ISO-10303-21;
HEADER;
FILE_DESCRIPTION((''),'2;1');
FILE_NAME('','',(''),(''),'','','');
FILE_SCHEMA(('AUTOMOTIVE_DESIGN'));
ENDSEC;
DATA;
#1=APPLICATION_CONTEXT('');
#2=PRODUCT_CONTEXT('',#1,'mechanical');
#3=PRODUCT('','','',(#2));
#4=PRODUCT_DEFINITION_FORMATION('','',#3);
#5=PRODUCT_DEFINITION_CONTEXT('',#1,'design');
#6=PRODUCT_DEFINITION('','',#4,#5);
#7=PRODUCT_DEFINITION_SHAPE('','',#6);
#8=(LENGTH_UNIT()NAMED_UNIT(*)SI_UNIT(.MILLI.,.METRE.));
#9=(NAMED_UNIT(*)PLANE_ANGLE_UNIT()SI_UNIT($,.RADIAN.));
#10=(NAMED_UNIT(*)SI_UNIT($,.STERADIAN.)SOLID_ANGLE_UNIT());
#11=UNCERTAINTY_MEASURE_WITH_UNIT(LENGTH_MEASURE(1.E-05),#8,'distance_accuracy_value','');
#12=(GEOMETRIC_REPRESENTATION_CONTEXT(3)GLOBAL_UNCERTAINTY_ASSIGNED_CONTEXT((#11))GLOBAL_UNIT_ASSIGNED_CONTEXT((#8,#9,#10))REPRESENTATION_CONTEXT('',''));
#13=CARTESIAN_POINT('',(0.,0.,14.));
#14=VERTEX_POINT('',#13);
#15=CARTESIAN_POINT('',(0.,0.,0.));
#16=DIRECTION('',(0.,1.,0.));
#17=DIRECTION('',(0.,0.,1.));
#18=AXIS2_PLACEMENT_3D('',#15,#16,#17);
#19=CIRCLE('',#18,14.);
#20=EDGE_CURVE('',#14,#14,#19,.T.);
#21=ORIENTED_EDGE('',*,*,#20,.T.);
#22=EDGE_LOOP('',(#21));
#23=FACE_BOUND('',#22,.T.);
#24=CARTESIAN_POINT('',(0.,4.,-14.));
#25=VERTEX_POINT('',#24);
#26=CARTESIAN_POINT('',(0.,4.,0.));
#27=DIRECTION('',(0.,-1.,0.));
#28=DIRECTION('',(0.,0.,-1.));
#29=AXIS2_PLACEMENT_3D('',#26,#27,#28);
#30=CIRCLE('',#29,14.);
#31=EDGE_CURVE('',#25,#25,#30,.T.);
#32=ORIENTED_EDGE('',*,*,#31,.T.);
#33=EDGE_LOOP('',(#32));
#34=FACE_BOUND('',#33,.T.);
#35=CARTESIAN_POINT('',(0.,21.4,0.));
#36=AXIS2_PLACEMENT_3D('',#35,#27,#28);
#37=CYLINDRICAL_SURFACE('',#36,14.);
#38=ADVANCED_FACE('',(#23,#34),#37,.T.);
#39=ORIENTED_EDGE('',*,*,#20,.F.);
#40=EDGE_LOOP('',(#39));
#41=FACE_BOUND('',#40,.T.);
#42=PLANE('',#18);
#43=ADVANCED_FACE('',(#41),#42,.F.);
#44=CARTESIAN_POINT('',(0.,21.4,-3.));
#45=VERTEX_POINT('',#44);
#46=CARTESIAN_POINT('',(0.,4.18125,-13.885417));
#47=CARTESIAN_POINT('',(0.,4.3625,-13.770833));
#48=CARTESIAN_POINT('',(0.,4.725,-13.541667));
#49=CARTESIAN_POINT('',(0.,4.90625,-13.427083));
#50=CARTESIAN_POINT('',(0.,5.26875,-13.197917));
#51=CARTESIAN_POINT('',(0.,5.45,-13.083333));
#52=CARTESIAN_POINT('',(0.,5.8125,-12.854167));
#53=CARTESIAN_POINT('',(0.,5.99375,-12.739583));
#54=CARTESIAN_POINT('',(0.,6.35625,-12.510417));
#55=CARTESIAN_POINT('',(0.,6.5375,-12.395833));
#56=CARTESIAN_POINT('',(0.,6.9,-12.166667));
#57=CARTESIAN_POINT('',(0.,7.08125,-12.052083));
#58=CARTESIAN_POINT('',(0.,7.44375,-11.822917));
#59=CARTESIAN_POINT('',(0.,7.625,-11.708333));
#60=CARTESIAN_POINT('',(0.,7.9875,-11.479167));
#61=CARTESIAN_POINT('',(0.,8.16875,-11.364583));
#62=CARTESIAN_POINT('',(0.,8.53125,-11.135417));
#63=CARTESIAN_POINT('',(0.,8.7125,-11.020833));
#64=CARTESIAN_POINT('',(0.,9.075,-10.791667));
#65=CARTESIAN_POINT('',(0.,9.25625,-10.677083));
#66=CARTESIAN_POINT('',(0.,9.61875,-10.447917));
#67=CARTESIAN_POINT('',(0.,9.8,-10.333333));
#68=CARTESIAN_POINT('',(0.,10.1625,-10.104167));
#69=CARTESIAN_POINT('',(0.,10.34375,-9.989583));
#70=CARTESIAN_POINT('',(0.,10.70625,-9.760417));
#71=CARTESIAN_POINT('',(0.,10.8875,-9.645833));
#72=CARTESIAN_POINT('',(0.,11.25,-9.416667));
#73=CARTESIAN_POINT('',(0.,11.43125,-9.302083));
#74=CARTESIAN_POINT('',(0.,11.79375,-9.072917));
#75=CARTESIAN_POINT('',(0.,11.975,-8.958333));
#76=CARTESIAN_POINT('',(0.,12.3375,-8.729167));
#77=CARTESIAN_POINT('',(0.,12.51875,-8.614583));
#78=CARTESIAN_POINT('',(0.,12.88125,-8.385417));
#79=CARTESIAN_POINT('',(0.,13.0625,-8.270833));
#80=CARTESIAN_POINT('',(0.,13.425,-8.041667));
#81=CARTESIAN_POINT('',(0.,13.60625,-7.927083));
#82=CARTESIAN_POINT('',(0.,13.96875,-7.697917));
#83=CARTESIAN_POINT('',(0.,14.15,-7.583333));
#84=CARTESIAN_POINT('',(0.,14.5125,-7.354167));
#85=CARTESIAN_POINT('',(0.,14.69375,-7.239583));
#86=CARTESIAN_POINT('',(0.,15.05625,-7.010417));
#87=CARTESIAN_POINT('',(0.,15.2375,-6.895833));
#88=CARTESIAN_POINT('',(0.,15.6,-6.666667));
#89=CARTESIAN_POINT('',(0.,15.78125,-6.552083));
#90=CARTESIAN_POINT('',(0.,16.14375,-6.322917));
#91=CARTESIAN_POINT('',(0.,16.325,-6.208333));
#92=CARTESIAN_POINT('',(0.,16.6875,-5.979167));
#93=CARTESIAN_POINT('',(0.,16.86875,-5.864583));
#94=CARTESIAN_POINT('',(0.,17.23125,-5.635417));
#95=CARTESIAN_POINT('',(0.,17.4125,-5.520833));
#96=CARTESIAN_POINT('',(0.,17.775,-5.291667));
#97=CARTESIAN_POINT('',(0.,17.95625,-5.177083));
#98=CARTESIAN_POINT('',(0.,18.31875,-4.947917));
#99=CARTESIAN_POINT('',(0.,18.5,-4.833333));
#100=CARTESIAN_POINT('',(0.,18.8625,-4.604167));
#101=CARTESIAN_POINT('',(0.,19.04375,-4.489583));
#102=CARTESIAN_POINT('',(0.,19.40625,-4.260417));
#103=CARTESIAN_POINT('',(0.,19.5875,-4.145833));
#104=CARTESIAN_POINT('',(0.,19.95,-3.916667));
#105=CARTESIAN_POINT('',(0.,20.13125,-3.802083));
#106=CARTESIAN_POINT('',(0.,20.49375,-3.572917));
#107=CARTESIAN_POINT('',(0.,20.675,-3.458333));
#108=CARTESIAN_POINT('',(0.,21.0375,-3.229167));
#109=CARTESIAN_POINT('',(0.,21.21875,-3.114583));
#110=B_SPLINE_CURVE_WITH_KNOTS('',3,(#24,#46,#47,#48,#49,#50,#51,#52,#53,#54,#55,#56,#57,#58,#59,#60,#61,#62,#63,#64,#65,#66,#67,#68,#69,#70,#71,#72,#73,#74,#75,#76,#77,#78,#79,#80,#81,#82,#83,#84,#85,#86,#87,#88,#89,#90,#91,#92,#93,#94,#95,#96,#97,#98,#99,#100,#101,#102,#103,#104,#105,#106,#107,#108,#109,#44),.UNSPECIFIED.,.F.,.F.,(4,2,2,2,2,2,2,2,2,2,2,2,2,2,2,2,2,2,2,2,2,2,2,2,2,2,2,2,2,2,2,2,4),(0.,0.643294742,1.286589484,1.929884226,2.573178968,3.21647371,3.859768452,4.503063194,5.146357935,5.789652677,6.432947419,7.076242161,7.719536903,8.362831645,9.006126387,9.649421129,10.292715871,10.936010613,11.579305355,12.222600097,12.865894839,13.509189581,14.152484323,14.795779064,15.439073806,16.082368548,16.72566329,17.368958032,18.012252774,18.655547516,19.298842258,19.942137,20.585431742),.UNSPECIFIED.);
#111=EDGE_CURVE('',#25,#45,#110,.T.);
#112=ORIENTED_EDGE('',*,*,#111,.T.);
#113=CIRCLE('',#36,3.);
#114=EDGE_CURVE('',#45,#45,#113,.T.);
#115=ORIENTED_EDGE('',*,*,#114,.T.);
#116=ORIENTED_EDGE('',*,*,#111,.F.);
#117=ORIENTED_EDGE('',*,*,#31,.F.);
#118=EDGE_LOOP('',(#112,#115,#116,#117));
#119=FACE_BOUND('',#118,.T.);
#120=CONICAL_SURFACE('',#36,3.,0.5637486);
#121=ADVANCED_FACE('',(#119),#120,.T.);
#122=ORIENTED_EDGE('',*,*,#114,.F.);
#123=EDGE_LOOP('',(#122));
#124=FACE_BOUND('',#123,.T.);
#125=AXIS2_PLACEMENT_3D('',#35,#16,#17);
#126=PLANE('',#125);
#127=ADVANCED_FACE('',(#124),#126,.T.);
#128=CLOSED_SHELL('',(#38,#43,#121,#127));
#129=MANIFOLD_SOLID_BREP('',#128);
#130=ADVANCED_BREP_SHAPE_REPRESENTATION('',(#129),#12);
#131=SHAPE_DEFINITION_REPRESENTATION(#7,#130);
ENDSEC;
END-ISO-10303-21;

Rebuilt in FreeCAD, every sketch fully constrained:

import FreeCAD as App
import Part
import Sketcher
Q = App.Units.Quantity

doc = App.newDocument("Part")
body = doc.addObject("PartDesign::Body", "Body")

# Sketch on XZ plane
sketch1 = doc.addObject("Sketcher::SketchObject", "Sketch")
body.addObject(sketch1)
sketch1.AttachmentSupport = (doc.XZ_Plane, [""])
sketch1.MapMode = "FlatFace"
sketch1.addGeometry(Part.Circle(App.Vector(0, 0, 0), App.Vector(0, 0, 1), 14), False)
sketch1.addConstraint([
    Sketcher.Constraint("Coincident", 0, 3, -1, 1),
    Sketcher.Constraint("Diameter", 0, Q("28 mm")),
])
pad1 = doc.addObject("PartDesign::Pad", "Pad")
body.addObject(pad1)
pad1.Profile = sketch1
pad1.Length = 21.4
pad1.Reversed = True

# Sketch on XY plane
sketch2 = doc.addObject("Sketcher::SketchObject", "Sketch001")
body.addObject(sketch2)
sketch2.AttachmentSupport = (doc.XY_Plane, [""])
sketch2.MapMode = "FlatFace"
sketch2.addGeometry([
    Part.LineSegment(App.Vector(14, 21, 0), App.Vector(3, 21, 0)),
    Part.LineSegment(App.Vector(3, 21, 0), App.Vector(14, 4, 0)),
    Part.LineSegment(App.Vector(14, 4, 0), App.Vector(14, 21, 0)),
], False)
sketch2.addConstraint([
    Sketcher.Constraint("Coincident", 0, 2, 1, 1),
    Sketcher.Constraint("Coincident", 1, 2, 2, 1),
    Sketcher.Constraint("Coincident", 2, 2, 0, 1),
    Sketcher.Constraint("Horizontal", 0),
    Sketcher.Constraint("Vertical", 2),
    Sketcher.Constraint("DistanceX", 0, 2, 0, 1, Q("11 mm")),
    Sketcher.Constraint("DistanceY", 2, 1, 2, 2, Q("17.4 mm")),
    Sketcher.Constraint("DistanceX", -1, 1, 0, 2, Q("3 mm")),
    Sketcher.Constraint("DistanceY", -1, 1, 1, 2, Q("4 mm")),
])
groove = doc.addObject("PartDesign::Groove", "Groove")
body.addObject(groove)
groove.Profile = sketch2
groove.ReferenceAxis = (sketch2, ["V_Axis"])
groove.Angle = 360

doc.recompute()
